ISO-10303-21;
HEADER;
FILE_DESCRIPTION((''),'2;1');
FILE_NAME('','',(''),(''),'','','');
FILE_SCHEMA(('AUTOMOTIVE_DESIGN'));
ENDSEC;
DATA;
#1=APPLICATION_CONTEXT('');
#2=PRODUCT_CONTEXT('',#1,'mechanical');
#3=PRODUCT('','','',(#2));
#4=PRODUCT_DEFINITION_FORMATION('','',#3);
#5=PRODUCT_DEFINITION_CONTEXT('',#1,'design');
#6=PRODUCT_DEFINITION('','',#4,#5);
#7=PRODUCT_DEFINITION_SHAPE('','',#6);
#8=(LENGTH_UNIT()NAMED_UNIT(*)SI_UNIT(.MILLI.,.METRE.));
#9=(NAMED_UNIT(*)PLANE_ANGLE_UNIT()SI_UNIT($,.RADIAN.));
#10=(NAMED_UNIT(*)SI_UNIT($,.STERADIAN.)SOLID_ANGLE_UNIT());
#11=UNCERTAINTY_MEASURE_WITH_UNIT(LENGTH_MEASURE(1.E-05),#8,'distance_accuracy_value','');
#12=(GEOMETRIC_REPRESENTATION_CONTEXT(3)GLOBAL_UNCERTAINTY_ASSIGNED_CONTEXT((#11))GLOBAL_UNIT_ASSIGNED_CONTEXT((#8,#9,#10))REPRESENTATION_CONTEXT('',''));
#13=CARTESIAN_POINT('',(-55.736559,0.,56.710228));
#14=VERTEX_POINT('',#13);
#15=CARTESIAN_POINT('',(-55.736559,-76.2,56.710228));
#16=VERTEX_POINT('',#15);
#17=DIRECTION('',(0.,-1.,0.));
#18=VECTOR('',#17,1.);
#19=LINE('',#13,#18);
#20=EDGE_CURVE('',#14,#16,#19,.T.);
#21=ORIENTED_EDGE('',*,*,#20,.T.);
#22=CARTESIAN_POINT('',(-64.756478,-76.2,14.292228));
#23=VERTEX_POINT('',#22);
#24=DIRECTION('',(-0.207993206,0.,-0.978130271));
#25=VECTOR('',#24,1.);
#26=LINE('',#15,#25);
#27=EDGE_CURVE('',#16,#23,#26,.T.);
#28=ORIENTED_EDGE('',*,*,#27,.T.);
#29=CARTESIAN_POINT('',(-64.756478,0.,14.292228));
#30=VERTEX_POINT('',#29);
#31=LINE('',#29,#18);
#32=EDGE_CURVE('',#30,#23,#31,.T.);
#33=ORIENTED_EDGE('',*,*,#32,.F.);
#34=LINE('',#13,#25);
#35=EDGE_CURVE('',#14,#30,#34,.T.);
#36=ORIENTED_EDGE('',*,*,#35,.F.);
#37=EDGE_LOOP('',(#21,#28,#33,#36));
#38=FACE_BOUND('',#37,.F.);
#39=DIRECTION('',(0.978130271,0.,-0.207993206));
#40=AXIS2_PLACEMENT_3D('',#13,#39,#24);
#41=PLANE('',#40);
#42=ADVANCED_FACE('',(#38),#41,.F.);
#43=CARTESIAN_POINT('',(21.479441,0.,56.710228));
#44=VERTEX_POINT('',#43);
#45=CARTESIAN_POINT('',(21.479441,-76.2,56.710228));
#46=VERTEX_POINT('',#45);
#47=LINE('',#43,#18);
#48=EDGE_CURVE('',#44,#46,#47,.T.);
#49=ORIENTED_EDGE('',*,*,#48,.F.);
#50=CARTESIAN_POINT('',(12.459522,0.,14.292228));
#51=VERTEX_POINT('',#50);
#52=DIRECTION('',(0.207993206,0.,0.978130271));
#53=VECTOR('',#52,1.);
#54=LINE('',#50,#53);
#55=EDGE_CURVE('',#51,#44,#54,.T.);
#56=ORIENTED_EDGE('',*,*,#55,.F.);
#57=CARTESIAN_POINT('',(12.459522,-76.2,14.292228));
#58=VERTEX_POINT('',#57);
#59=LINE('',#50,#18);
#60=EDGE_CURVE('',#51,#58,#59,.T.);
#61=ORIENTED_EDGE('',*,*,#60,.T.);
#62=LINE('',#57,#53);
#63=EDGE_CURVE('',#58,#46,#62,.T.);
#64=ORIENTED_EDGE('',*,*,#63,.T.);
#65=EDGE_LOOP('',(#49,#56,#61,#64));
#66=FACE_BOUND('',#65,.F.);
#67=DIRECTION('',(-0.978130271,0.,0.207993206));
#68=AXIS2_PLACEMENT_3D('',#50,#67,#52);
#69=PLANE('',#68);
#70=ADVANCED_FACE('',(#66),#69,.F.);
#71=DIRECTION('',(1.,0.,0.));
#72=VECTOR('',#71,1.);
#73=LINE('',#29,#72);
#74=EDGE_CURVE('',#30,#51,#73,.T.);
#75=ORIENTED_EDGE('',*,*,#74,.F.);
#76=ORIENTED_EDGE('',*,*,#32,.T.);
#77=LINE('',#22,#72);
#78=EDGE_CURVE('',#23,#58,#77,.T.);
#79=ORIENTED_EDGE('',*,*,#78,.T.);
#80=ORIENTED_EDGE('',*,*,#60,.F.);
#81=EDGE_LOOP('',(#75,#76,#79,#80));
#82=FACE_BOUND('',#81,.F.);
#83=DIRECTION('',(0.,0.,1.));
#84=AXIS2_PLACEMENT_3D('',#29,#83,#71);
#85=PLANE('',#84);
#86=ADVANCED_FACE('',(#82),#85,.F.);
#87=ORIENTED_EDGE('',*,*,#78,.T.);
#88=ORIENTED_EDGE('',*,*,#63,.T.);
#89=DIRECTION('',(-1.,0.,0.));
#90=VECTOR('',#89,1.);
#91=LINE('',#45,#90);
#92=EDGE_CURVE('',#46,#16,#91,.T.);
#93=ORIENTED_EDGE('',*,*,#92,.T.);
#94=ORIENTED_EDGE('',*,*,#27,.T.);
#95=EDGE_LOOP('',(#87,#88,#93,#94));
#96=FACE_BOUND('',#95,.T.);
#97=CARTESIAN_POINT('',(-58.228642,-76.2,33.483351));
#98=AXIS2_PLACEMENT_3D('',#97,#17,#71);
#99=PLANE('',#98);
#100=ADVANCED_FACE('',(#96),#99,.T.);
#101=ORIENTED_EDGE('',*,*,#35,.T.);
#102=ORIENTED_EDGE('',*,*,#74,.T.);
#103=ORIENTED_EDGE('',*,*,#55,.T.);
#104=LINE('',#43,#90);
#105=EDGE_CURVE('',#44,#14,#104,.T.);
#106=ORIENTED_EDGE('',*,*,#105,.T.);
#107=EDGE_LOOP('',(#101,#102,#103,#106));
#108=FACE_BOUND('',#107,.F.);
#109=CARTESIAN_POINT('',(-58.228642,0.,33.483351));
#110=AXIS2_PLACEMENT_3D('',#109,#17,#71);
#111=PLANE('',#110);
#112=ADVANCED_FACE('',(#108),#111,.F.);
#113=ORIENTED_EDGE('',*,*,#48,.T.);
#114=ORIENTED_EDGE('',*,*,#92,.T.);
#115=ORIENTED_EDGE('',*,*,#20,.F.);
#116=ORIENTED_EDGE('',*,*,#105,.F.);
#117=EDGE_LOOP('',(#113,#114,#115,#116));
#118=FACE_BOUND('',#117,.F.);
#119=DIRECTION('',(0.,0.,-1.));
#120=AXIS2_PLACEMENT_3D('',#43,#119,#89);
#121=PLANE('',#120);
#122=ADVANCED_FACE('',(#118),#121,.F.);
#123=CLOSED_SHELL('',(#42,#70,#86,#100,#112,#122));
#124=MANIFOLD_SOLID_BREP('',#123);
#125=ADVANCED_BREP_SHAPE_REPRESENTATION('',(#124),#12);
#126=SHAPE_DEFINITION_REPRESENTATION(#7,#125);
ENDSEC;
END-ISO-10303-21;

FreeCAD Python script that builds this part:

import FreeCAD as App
import Part
import Sketcher

V = App.Vector
Q = App.Units.Quantity


def add_polygon(sketch, points):
    """Adds a closed chain of lines whose ends are joined by coincident constraints."""
    first, n = sketch.GeometryCount, len(points)
    for a, b in zip(points, points[1:] + points[:1]):
        sketch.addGeometry(Part.LineSegment(App.Vector(*a, 0), App.Vector(*b, 0)), False)
    for i in range(n):
        sketch.addConstraint(Sketcher.Constraint("Coincident", first + i, 2, first + (i + 1) % n, 1))

doc = App.newDocument("Part")
params = doc.addObject("Spreadsheet::Sheet", "Params")
for row, (alias, value) in enumerate([
    ("sketch1_width", "3.04 in"),
    ("pad1_length", "3 in"),
], start=1):
    params.set(f"A{row}", alias)
    params.set(f"B{row}", "=" + value)
    params.setAlias(f"B{row}", alias)

body = doc.addObject("PartDesign::Body", "Body")

# Sketch on XZ plane
sketch1 = body.newObject("Sketcher::SketchObject", "Sketch")
sketch1.AttachmentSupport = (doc.getObject("XZ_Plane"), [""])
sketch1.MapMode = "FlatFace"
add_polygon(sketch1, [(-56, 57), (-65, 14), (12, 14), (21, 57)])  # lines 0-3
sketch1.addConstraint([
    Sketcher.Constraint("Horizontal", 1),
    Sketcher.Constraint("Horizontal", 3),
    Sketcher.Constraint("Parallel", 0, 2),
    Sketcher.Constraint("DistanceX", 1, 1, 1, 2, Q("3.04 in")),
    Sketcher.Constraint("DistanceY", 1, 2, 2, 2, Q("1.67 in")),
    Sketcher.Constraint("Distance", 0, 43.366412),
    Sketcher.Constraint("DistanceX", 0, 2, -1, 1, 64.756478),
    Sketcher.Constraint("DistanceY", -1, 1, 0, 2, 14.292228),
])
sketch1.setExpression("Constraints[7]", "Params.sketch1_width")
pad1 = body.newObject("PartDesign::Pad", "Pad")
pad1.Profile = sketch1
pad1.setExpression("Length", "Params.pad1_length")

doc.recompute()
